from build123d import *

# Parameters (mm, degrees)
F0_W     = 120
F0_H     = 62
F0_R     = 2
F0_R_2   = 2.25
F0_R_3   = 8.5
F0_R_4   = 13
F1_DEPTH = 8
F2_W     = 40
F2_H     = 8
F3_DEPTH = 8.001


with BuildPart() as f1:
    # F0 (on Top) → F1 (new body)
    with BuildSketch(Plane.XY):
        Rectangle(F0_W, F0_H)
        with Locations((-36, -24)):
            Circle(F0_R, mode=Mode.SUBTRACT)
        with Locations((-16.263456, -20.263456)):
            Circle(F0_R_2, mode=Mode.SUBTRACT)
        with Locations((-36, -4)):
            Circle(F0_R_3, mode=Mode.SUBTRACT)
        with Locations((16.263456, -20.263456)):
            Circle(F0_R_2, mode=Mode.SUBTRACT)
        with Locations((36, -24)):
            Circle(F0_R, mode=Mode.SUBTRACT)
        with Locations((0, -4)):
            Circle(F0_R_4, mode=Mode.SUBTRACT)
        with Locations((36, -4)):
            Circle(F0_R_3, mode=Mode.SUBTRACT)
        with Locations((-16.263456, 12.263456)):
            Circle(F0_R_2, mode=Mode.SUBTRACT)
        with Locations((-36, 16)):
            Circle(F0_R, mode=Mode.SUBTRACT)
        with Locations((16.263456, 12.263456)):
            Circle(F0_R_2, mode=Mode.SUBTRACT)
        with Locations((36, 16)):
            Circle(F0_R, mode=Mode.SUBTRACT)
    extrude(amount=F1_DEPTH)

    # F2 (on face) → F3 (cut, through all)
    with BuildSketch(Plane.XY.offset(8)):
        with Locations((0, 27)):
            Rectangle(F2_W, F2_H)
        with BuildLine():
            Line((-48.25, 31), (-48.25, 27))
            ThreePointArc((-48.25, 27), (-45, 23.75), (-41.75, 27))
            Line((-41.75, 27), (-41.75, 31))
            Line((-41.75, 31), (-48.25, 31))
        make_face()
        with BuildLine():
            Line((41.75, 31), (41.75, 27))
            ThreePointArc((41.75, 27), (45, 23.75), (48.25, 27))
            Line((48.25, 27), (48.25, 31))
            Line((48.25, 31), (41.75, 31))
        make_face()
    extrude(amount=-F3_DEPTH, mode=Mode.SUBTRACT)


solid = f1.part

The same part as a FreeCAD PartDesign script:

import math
import FreeCAD as App
import Part
import Sketcher
from FreeCAD import Vector
Q = App.Units.Quantity


def add_polygon(sketch, points):
    """Adds a closed chain of lines whose ends are joined by coincident constraints."""
    first, n = sketch.GeometryCount, len(points)
    for a, b in zip(points, points[1:] + points[:1]):
        sketch.addGeometry(Part.LineSegment(App.Vector(*a, 0), App.Vector(*b, 0)), False)
    for i in range(n):
        sketch.addConstraint(Sketcher.Constraint("Coincident", first + i, 2, first + (i + 1) % n, 1))

doc = App.newDocument("Part")
body = doc.addObject("PartDesign::Body", "Body")

# Sketch on XY plane
sketch1 = body.newObject("Sketcher::SketchObject", "Sketch")
sketch1.AttachmentSupport = (doc.getObject("XY_Plane"), [""])
sketch1.MapMode = "FlatFace"
add_polygon(sketch1, [(-60, 31), (-60, -31), (60, -31), (60, 31)])  # lines 0-3
sketch1.addGeometry(Part.Circle(Vector(-36, -24, 0), Vector(0, 0, 1), 2), False)  # 4
sketch1.addGeometry(Part.Circle(Vector(-16.3, -20.3, 0), Vector(0, 0, 1), 2.2), False)  # 5
sketch1.addGeometry(Part.Circle(Vector(16.3, -20.3, 0), Vector(0, 0, 1), 2.2), False)  # 6
sketch1.addGeometry(Part.Circle(Vector(36, -24, 0), Vector(0, 0, 1), 2), False)  # 7
sketch1.addGeometry(Part.Circle(Vector(-36, -4, 0), Vector(0, 0, 1), 8.5), False)  # 8
sketch1.addGeometry(Part.Circle(Vector(-36, 16, 0), Vector(0, 0, 1), 2), False)  # 9
sketch1.addGeometry(Part.Circle(Vector(-16.3, 12.3, 0), Vector(0, 0, 1), 2.2), False)  # 10
sketch1.addGeometry(Part.Circle(Vector(0, -4, 0), Vector(0, 0, 1), 13), False)  # 11
sketch1.addGeometry(Part.Circle(Vector(36, -4, 0), Vector(0, 0, 1), 8.5), False)  # 12
sketch1.addGeometry(Part.Circle(Vector(16.3, 12.3, 0), Vector(0, 0, 1), 2.2), False)  # 13
sketch1.addGeometry(Part.Circle(Vector(36, 16, 0), Vector(0, 0, 1), 2), False)  # 14
sketch1.addConstraint([
    Sketcher.Constraint("Vertical", 0),
    Sketcher.Constraint("Horizontal", 1),
    Sketcher.Constraint("Vertical", 2),
    Sketcher.Constraint("Horizontal", 3),
    Sketcher.Constraint("Equal", 5, 6),
    Sketcher.Constraint("Equal", 4, 7),
    Sketcher.Constraint("Equal", 7, 9),
    Sketcher.Constraint("Equal", 6, 10),
    Sketcher.Constraint("Equal", 8, 12),
    Sketcher.Constraint("Equal", 10, 13),
    Sketcher.Constraint("Equal", 9, 14),
    Sketcher.Constraint("Symmetric", 0, 2, 2, 2, -1, 1),
    Sketcher.Constraint("Symmetric", 5, 3, 6, 3, -2),
    Sketcher.Constraint("Symmetric", 4, 3, 7, 3, -2),
    Sketcher.Constraint("Symmetric", 8, 3, 12, 3, -2),
    Sketcher.Constraint("Symmetric", 10, 3, 13, 3, -2),
    Sketcher.Constraint("Symmetric", 9, 3, 14, 3, -2),
    Sketcher.Constraint("PointOnObject", 11, 3, -2),
    Sketcher.Constraint("Horizontal", 8, 3, 11, 3),
    Sketcher.Constraint("Vertical", 4, 3, 8, 3),
    Sketcher.Constraint("Vertical", 8, 3, 9, 3),
    Sketcher.Constraint("Vertical", 5, 3, 10, 3),
    Sketcher.Constraint("Diameter", 4, Q("4 mm")),
    Sketcher.Constraint("Diameter", 8, Q("17 mm")),
    Sketcher.Constraint("Diameter", 11, Q("26 mm")),
    Sketcher.Constraint("Diameter", 5, Q("4.5 mm")),
    Sketcher.Constraint("DistanceX", 1, 1, 1, 2, Q("120 mm")),
    Sketcher.Constraint("DistanceY", 0, 2, 0, 1, Q("62 mm")),
    Sketcher.Constraint("DistanceX", 4, 3, -1, 1, Q("36 mm")),
    Sketcher.Constraint("DistanceY", 4, 3, -1, 1, Q("24 mm")),
    Sketcher.Constraint("DistanceY", 8, 3, -1, 1, Q("4 mm")),
    Sketcher.Constraint("DistanceY", -1, 1, 9, 3, Q("16 mm")),
    Sketcher.Constraint("DistanceX", 5, 3, -1, 1, Q("16.263456 mm")),
    Sketcher.Constraint("DistanceY", 5, 3, -1, 1, Q("20.263456 mm")),
    Sketcher.Constraint("DistanceY", -1, 1, 10, 3, Q("12.263456 mm")),
])
pad1 = body.newObject("PartDesign::Pad", "Pad")
pad1.Profile = sketch1
pad1.Length = 8

# Sketch on XY plane
sketch2 = body.newObject("Sketcher::SketchObject", "Sketch001")
sketch2.AttachmentSupport = (doc.getObject("XY_Plane"), [""])
sketch2.MapMode = "FlatFace"
sketch2.AttachmentOffset = App.Placement(Vector(0, 0, 8), App.Rotation())
add_polygon(sketch2, [(-20, 31), (-20, 23), (20, 23), (20, 31)])  # lines 0-3
sketch2.addGeometry(Part.LineSegment(Vector(-48.2, 31, 0), Vector(-48.2, 27, 0)), False)  # 4
sketch2.addGeometry(Part.ArcOfCircle(Part.Circle(Vector(-45, 27, 0), Vector(0, 0, 1), 3.2), math.radians(180), math.radians(360)), False)  # 5
sketch2.addGeometry(Part.LineSegment(Vector(-41.8, 27, 0), Vector(-41.8, 31, 0)), False)  # 6
sketch2.addGeometry(Part.LineSegment(Vector(-41.8, 31, 0), Vector(-48.2, 31, 0)), False)  # 7
sketch2.addGeometry(Part.LineSegment(Vector(41.8, 31, 0), Vector(41.8, 27, 0)), False)  # 8
sketch2.addGeometry(Part.ArcOfCircle(Part.Circle(Vector(45, 27, 0), Vector(0, 0, 1), 3.2), math.radians(180), math.radians(360)), False)  # 9
sketch2.addGeometry(Part.LineSegment(Vector(48.2, 27, 0), Vector(48.2, 31, 0)), False)  # 10
sketch2.addGeometry(Part.LineSegment(Vector(48.2, 31, 0), Vector(41.8, 31, 0)), False)  # 11
sketch2.addConstraint([
    Sketcher.Constraint("Tangent", 4, 2, 5, 1),
    Sketcher.Constraint("Tangent", 5, 2, 6, 1),
    Sketcher.Constraint("Coincident", 6, 2, 7, 1),
    Sketcher.Constraint("Coincident", 7, 2, 4, 1),
    Sketcher.Constraint("Tangent", 8, 2, 9, 1),
    Sketcher.Constraint("Tangent", 9, 2, 10, 1),
    Sketcher.Constraint("Coincident", 10, 2, 11, 1),
    Sketcher.Constraint("Coincident", 11, 2, 8, 1),
    Sketcher.Constraint("Vertical", 0),
    Sketcher.Constraint("Horizontal", 1),
    Sketcher.Constraint("Vertical", 2),
    Sketcher.Constraint("Horizontal", 3),
    Sketcher.Constraint("Vertical", 4),
    Sketcher.Constraint("Vertical", 6),
    Sketcher.Constraint("Horizontal", 7),
    Sketcher.Constraint("Vertical", 8),
    Sketcher.Constraint("Vertical", 10),
    Sketcher.Constraint("Horizontal", 11),
    Sketcher.Constraint("Equal", 5, 9),
    Sketcher.Constraint("Symmetric", 5, 3, 9, 3, -2),
    Sketcher.Constraint("Horizontal", 3, 2, 6, 2),
    Sketcher.Constraint("Horizontal", 7, 2, 10, 2),
    Sketcher.Constraint("DistanceX", 1, 1, 1, 2, Q("40 mm")),
    Sketcher.Constraint("DistanceY", 0, 2, 0, 1, Q("8 mm")),
    Sketcher.Constraint("DistanceY", 4, 2, 4, 1, Q("4 mm")),
    Sketcher.Constraint("Radius", 5, Q("3.25 mm")),
    Sketcher.Constraint("DistanceX", 5, 3, -1, 1, Q("45 mm")),
    Sketcher.Constraint("DistanceY", -1, 1, 5, 3, Q("27 mm")),
    Sketcher.Constraint("DistanceX", 0, 2, -1, 1, Q("20 mm")),
])
pocket1 = body.newObject("PartDesign::Pocket", "Pocket")
pocket1.Profile = sketch2
pocket1.Type = "ThroughAll"

doc.recompute()
